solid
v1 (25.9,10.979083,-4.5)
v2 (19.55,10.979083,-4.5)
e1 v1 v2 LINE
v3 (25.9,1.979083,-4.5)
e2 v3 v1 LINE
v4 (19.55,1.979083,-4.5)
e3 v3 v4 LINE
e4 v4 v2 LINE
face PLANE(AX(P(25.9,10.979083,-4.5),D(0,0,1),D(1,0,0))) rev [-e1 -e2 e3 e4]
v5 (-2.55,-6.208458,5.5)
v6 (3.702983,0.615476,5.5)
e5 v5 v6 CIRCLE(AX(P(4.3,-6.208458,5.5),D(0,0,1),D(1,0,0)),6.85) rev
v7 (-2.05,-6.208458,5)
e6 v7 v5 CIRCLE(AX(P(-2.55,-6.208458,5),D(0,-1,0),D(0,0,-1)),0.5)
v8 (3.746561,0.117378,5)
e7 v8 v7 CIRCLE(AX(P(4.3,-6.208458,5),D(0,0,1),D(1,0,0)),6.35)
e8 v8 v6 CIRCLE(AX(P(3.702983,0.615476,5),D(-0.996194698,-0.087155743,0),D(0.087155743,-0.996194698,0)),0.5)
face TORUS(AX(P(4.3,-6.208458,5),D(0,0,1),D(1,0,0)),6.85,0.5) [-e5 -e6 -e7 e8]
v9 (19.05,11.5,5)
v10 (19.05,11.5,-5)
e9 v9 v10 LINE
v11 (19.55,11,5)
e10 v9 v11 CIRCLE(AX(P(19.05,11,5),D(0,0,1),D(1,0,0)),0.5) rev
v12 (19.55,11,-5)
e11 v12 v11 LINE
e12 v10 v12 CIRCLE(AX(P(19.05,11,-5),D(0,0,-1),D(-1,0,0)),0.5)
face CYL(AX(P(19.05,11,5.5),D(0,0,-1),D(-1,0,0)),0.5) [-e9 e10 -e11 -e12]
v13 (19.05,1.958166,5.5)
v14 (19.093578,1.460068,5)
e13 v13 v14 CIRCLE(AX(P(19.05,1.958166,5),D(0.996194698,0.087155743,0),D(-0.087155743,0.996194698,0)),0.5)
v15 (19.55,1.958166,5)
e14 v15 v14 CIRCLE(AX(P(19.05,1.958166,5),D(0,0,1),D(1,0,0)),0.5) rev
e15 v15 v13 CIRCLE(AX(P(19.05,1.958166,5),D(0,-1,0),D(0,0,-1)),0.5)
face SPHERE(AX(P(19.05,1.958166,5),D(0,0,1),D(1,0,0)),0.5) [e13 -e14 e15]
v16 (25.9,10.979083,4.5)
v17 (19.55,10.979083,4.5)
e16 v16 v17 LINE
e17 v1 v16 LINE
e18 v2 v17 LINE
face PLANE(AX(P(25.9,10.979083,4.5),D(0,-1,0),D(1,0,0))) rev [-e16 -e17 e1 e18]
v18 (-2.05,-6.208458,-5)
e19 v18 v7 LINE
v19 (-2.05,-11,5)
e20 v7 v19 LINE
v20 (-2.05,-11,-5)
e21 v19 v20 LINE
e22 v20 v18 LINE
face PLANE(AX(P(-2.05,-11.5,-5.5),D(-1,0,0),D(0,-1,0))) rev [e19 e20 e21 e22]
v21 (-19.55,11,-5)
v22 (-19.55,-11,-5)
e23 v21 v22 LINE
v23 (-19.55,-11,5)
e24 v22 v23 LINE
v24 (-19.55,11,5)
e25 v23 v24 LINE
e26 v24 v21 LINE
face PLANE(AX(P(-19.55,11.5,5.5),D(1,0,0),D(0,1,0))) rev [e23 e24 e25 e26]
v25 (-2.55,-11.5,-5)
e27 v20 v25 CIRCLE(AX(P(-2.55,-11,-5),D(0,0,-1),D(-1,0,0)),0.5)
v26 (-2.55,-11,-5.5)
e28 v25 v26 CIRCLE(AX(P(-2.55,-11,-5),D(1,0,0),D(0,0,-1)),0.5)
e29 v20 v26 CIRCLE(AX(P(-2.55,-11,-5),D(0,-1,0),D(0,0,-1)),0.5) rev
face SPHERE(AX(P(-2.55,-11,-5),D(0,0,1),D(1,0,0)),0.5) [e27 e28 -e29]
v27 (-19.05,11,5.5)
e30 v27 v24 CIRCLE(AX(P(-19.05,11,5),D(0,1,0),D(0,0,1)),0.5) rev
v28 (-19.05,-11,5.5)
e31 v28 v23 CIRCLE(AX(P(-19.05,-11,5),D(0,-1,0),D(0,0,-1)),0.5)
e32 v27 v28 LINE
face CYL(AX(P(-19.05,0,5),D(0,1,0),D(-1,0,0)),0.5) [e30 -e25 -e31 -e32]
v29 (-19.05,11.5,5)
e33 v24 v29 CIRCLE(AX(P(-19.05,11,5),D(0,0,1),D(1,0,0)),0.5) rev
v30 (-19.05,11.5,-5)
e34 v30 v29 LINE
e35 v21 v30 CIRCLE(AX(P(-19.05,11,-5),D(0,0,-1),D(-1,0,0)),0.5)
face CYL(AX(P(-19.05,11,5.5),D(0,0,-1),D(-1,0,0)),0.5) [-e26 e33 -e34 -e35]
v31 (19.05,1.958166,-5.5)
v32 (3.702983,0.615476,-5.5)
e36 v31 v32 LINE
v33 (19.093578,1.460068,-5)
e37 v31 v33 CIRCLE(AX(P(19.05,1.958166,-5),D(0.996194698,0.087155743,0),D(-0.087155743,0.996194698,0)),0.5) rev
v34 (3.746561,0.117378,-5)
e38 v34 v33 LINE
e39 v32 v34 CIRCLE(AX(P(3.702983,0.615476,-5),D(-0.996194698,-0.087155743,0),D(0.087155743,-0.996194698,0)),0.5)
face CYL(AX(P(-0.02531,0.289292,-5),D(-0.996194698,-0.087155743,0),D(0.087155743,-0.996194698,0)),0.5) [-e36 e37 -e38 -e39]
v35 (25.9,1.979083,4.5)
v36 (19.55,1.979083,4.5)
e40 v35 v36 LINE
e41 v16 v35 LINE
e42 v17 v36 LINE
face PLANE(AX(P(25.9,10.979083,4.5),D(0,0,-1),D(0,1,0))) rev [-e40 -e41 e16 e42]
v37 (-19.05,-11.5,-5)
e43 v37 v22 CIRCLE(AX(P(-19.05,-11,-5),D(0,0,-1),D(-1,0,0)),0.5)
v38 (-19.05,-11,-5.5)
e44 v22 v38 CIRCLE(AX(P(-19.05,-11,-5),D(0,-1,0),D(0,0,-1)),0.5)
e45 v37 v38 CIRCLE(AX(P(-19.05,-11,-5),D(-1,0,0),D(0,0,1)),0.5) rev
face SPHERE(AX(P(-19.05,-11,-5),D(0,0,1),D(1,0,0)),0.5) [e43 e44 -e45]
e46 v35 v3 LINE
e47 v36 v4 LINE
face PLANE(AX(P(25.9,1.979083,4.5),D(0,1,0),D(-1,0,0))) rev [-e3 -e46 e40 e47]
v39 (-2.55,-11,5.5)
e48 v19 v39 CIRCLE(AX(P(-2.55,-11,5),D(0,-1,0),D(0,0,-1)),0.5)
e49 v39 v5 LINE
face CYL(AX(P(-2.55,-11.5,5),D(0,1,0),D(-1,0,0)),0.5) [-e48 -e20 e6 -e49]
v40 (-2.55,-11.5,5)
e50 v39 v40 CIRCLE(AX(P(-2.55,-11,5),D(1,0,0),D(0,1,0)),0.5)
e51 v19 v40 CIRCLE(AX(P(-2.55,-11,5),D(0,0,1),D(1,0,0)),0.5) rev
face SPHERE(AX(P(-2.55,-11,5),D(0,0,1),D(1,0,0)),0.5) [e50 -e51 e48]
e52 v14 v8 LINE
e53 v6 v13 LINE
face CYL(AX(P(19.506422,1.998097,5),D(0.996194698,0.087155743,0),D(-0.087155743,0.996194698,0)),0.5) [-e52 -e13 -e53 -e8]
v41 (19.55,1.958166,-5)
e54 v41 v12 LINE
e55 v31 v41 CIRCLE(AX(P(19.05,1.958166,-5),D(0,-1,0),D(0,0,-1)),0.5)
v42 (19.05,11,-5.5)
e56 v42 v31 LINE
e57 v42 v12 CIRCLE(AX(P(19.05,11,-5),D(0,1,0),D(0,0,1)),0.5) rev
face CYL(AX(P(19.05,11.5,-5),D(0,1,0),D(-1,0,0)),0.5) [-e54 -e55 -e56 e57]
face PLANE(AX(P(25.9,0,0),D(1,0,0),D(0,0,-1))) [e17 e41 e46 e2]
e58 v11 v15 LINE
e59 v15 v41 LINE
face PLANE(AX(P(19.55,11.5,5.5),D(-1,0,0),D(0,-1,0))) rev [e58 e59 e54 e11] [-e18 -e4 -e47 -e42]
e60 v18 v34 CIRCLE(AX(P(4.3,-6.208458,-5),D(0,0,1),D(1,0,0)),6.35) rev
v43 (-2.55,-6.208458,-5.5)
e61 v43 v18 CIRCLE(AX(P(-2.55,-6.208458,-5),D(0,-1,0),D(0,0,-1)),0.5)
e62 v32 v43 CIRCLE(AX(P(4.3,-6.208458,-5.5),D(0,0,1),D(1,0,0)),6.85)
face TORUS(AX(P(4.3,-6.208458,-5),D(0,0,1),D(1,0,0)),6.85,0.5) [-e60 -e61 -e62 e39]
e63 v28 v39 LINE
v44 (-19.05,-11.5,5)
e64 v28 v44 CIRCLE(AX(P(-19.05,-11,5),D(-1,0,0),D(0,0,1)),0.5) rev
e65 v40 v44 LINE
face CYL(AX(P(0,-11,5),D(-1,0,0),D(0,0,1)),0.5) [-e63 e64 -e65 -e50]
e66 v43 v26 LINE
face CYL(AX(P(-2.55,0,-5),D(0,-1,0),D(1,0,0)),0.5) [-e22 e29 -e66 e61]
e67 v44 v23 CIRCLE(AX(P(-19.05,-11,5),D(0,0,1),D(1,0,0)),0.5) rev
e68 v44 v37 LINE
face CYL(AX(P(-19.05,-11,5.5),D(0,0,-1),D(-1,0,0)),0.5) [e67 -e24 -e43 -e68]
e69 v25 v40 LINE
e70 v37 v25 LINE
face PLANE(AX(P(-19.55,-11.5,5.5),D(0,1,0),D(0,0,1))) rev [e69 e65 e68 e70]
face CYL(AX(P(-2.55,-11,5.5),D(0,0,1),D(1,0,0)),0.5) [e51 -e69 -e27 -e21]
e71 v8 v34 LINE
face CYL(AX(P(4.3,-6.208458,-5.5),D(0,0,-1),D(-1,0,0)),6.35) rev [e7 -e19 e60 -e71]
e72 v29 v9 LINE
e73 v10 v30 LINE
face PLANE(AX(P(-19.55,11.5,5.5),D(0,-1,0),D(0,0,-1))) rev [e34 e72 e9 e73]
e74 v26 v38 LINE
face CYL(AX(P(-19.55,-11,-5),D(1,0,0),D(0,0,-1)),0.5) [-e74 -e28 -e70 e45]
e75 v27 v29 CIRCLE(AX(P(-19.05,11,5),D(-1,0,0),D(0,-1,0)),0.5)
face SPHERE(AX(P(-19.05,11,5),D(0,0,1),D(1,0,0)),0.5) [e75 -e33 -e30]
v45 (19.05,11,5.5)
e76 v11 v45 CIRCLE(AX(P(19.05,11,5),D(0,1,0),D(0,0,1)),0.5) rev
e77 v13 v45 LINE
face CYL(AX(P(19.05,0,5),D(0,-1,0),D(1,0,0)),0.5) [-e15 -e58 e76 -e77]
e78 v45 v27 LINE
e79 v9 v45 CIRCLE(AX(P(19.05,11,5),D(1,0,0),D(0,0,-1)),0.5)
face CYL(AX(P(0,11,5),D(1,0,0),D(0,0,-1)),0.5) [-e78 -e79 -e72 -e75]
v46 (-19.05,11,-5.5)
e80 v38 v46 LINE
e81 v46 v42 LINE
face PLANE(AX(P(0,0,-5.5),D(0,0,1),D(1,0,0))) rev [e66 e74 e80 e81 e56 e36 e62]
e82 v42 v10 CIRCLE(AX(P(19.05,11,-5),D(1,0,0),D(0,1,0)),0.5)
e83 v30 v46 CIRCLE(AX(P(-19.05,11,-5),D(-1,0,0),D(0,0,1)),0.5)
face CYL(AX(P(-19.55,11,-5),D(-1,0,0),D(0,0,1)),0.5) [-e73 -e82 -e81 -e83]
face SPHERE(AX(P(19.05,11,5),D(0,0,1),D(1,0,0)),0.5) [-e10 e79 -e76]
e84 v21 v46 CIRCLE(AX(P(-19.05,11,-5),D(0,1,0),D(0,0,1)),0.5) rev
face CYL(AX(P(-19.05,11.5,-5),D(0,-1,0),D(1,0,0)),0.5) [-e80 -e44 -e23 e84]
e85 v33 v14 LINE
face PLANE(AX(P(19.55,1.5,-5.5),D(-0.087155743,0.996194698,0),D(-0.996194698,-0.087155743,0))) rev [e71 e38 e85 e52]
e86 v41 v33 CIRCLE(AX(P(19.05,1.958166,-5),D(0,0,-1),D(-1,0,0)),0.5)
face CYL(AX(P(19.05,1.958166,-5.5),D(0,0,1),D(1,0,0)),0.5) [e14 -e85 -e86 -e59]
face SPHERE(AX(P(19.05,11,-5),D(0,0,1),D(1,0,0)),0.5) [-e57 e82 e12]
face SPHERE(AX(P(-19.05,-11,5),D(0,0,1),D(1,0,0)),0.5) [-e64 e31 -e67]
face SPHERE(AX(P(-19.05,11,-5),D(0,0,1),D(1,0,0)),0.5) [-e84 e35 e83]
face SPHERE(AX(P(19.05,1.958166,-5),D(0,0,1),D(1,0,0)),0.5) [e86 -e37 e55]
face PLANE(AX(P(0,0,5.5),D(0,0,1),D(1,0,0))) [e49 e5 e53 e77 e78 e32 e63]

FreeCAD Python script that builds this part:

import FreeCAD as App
import Part
import Sketcher
Q = App.Units.Quantity


def edges_at(feature, points):
    """Names of the edges that pass closest to the given points."""
    edges = feature.Shape.Edges
    near = lambda p: min(range(len(edges)), key=lambda i: edges[i].distToShape(Part.Vertex(*p))[0])
    return sorted({f"Edge{near(p) + 1}" for p in points})

doc = App.newDocument("Part")
body = doc.addObject("PartDesign::Body", "Body")

# Sketch on XY plane
sketch1 = body.newObject("Sketcher::SketchObject", "Sketch")
sketch1.AttachmentSupport = (doc.getObject("XY_Plane"), [""])
sketch1.MapMode = "FlatFace"
sketch1.addGeometry(Part.LineSegment(App.Vector(-20, 12, 0), App.Vector(-20, -12, 0)), False)
sketch1.addGeometry(Part.LineSegment(App.Vector(-20, -12, 0), App.Vector(20, -12, 0)), False)
sketch1.addGeometry(Part.LineSegment(App.Vector(20, -12, 0), App.Vector(20, 12, 0)), False)
sketch1.addGeometry(Part.LineSegment(App.Vector(20, 12, 0), App.Vector(-20, 12, 0)), False)
sketch1.addConstraint(Sketcher.Constraint("Coincident", 0, 2, 1, 1))
sketch1.addConstraint(Sketcher.Constraint("Coincident", 1, 2, 2, 1))
sketch1.addConstraint(Sketcher.Constraint("Coincident", 2, 2, 3, 1))
sketch1.addConstraint(Sketcher.Constraint("Coincident", 3, 2, 0, 1))
sketch1.addConstraint(Sketcher.Constraint("Vertical", 0))
sketch1.addConstraint(Sketcher.Constraint("Horizontal", 1))
sketch1.addConstraint(Sketcher.Constraint("Vertical", 2))
sketch1.addConstraint(Sketcher.Constraint("Horizontal", 3))
sketch1.addConstraint(Sketcher.Constraint("Symmetric", 0, 2, 2, 2, -1, 1))
sketch1.addConstraint(Sketcher.Constraint("DistanceY", 0, 2, 0, 1, 23.0))
sketch1.addConstraint(Sketcher.Constraint("DistanceX", 1, 1, 1, 2, 39.1))
pad1 = body.newObject("PartDesign::Pad", "Pad")
pad1.Profile = sketch1
pad1.Length = 11
pad1.Midplane = True

# Sketch on XY plane
sketch2 = body.newObject("Sketcher::SketchObject", "Sketch001")
sketch2.AttachmentSupport = (doc.getObject("XY_Plane"), [""])
sketch2.MapMode = "FlatFace"
sketch2.AttachmentOffset = App.Placement(App.Vector(0, 0, 5.5), App.Rotation())
sketch2.addGeometry(Part.LineSegment(App.Vector(-2, -12, 0), App.Vector(20, -12, 0)), False)
sketch2.addGeometry(Part.LineSegment(App.Vector(20, -12, 0), App.Vector(20, 2, 0)), False)
sketch2.addGeometry(Part.LineSegment(App.Vector(20, 2, 0), App.Vector(-2, 0, 0)), False)
sketch2.addGeometry(Part.LineSegment(App.Vector(-2, 0, 0), App.Vector(-2, -12, 0)), False)
sketch2.addConstraint(Sketcher.Constraint("Coincident", 0, 2, 1, 1))
sketch2.addConstraint(Sketcher.Constraint("Coincident", 1, 2, 2, 1))
sketch2.addConstraint(Sketcher.Constraint("Coincident", 2, 2, 3, 1))
sketch2.addConstraint(Sketcher.Constraint("Coincident", 3, 2, 0, 1))
sketch2.addConstraint(Sketcher.Constraint("Horizontal", 0))
sketch2.addConstraint(Sketcher.Constraint("Vertical", 1))
sketch2.addConstraint(Sketcher.Constraint("Vertical", 3))
sketch2.addConstraint(Sketcher.Constraint("DistanceY", 1, 1, 1, 2, 13.0))
sketch2.addConstraint(Sketcher.Constraint("Angle", 2, Q("-175 deg")))
sketch2.addConstraint(Sketcher.Constraint("DistanceX", 0, 1, 0, 2, 21.6))
sketch2.addConstraint(Sketcher.Constraint("DistanceY", 0, 2, -1, 1, 11.5))
sketch2.addConstraint(Sketcher.Constraint("DistanceX", -1, 1, 0, 2, 19.55))
pocket1 = body.newObject("PartDesign::Pocket", "Pocket")
pocket1.Profile = sketch2
pocket1.Type = "ThroughAll"
doc.recompute()

fillet = body.newObject("PartDesign::Fillet", "Fillet")
fillet.Base = (pocket1, edges_at(pocket1, [(-2.05, -0.39, 0)]))
fillet.Radius = 6.35
doc.recompute()

fillet2 = body.newObject("PartDesign::Fillet", "Fillet001")
fillet2.Base = (fillet, ["Edge1"])
fillet2.UseAllEdges = True
fillet2.Radius = 0.5

# Sketch on YZ plane
sketch3 = body.newObject("Sketcher::SketchObject", "Sketch002")
sketch3.AttachmentSupport = (doc.getObject("YZ_Plane"), [""])
sketch3.MapMode = "FlatFace"
sketch3.AttachmentOffset = App.Placement(App.Vector(0, 0, 19.55), App.Rotation())
sketch3.addGeometry(Part.LineSegment(App.Vector(11, 4, 0), App.Vector(2, 4, 0)), False)
sketch3.addGeometry(Part.LineSegment(App.Vector(2, 4, 0), App.Vector(2, -4, 0)), False)
sketch3.addGeometry(Part.LineSegment(App.Vector(2, -4, 0), App.Vector(11, -4, 0)), False)
sketch3.addGeometry(Part.LineSegment(App.Vector(11, -4, 0), App.Vector(11, 4, 0)), False)
sketch3.addConstraint(Sketcher.Constraint("Coincident", 0, 2, 1, 1))
sketch3.addConstraint(Sketcher.Constraint("Coincident", 1, 2, 2, 1))
sketch3.addConstraint(Sketcher.Constraint("Coincident", 2, 2, 3, 1))
sketch3.addConstraint(Sketcher.Constraint("Coincident", 3, 2, 0, 1))
sketch3.addConstraint(Sketcher.Constraint("Horizontal", 0))
sketch3.addConstraint(Sketcher.Constraint("Vertical", 1))
sketch3.addConstraint(Sketcher.Constraint("Horizontal", 2))
sketch3.addConstraint(Sketcher.Constraint("Vertical", 3))
sketch3.addConstraint(Sketcher.Constraint("Equal", 2, 1))
sketch3.addConstraint(Sketcher.Constraint("DistanceX", 0, 2, 0, 1, 9.0))
sketch3.addConstraint(Sketcher.Constraint("DistanceY", -1, 1, 0, 2, 4.5))
sketch3.addConstraint(Sketcher.Constraint("DistanceX", -1, 1, 0, 2, 1.979083))
pad2 = body.newObject("PartDesign::Pad", "Pad001")
pad2.Profile = sketch3
pad2.Length = 6.35

doc.recompute()
